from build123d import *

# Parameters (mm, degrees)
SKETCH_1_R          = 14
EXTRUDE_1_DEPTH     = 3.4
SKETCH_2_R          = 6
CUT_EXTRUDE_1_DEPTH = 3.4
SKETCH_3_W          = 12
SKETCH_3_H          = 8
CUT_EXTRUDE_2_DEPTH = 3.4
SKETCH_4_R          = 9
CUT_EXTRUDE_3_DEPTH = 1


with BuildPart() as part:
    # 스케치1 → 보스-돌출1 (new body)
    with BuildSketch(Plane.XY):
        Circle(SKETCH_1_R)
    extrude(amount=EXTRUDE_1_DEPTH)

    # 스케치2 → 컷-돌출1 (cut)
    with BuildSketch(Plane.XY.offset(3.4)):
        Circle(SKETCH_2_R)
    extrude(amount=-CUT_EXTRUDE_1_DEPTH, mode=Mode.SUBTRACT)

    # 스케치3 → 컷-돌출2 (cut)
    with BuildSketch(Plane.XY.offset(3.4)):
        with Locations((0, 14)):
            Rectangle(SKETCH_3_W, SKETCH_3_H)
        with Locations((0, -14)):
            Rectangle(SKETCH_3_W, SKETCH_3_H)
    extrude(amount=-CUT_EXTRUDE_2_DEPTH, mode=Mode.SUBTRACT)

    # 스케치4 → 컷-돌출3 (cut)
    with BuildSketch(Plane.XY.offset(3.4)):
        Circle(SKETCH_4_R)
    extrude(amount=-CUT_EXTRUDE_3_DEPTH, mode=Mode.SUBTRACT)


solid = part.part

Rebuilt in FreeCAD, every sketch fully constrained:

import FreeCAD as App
import Part
import Sketcher

V = App.Vector
Q = App.Units.Quantity


def add_polygon(sketch, points):
    """Adds a closed chain of lines whose ends are joined by coincident constraints."""
    first, n = sketch.GeometryCount, len(points)
    for a, b in zip(points, points[1:] + points[:1]):
        sketch.addGeometry(Part.LineSegment(App.Vector(*a, 0), App.Vector(*b, 0)), False)
    for i in range(n):
        sketch.addConstraint(Sketcher.Constraint("Coincident", first + i, 2, first + (i + 1) % n, 1))

doc = App.newDocument("Part")
body = doc.addObject("PartDesign::Body", "Body")

# Sketch on XY plane
sketch1 = body.newObject("Sketcher::SketchObject", "Sketch")
sketch1.AttachmentSupport = (doc.getObject("XY_Plane"), [""])
sketch1.MapMode = "FlatFace"
sketch1.addGeometry(Part.Circle(V(0, 0, 0), V(0, 0, 1), 14), False)
sketch1.addConstraint([
    Sketcher.Constraint("Coincident", 0, 3, -1, 1),
    Sketcher.Constraint("Diameter", 0, Q("28 mm")),
])
pad1 = body.newObject("PartDesign::Pad", "Pad")
pad1.Profile = sketch1
pad1.Length = 3.4

# Sketch on XY plane
sketch2 = body.newObject("Sketcher::SketchObject", "Sketch001")
sketch2.AttachmentSupport = (doc.getObject("XY_Plane"), [""])
sketch2.MapMode = "FlatFace"
sketch2.AttachmentOffset = App.Placement(V(0, 0, 3.4), App.Rotation())
sketch2.addGeometry(Part.Circle(V(0, 0, 0), V(0, 0, 1), 6), False)
sketch2.addConstraint([
    Sketcher.Constraint("Coincident", 0, 3, -1, 1),
    Sketcher.Constraint("Diameter", 0, Q("12 mm")),
])
pocket1 = body.newObject("PartDesign::Pocket", "Pocket")
pocket1.Profile = sketch2
pocket1.Length = 3.4

# Sketch on XY plane
sketch3 = body.newObject("Sketcher::SketchObject", "Sketch002")
sketch3.AttachmentSupport = (doc.getObject("XY_Plane"), [""])
sketch3.MapMode = "FlatFace"
sketch3.AttachmentOffset = App.Placement(V(0, 0, 3.4), App.Rotation())
add_polygon(sketch3, [(-6, 18), (-6, 10), (6, 10), (6, 18)])  # lines 0-3
add_polygon(sketch3, [(-6, -10), (-6, -18), (6, -18), (6, -10)])  # lines 4-7
sketch3.addConstraint([
    Sketcher.Constraint("Vertical", 0),
    Sketcher.Constraint("Horizontal", 1),
    Sketcher.Constraint("Vertical", 2),
    Sketcher.Constraint("Horizontal", 3),
    Sketcher.Constraint("Vertical", 4),
    Sketcher.Constraint("Horizontal", 5),
    Sketcher.Constraint("Vertical", 6),
    Sketcher.Constraint("Horizontal", 7),
    Sketcher.Constraint("Symmetric", 2, 2, 4, 2, -1, 1),
    Sketcher.Constraint("Symmetric", 0, 2, 6, 2, -1, 1),
    Sketcher.Constraint("Vertical", 3, 2, 4, 2),
    Sketcher.Constraint("DistanceX", 1, 1, 1, 2, Q("12 mm")),
    Sketcher.Constraint("DistanceY", 0, 2, 0, 1, Q("8 mm")),
    Sketcher.Constraint("DistanceY", -1, 1, 0, 2, Q("10 mm")),
])
pocket2 = body.newObject("PartDesign::Pocket", "Pocket001")
pocket2.Profile = sketch3
pocket2.Length = 3.4

# Sketch on XY plane
sketch4 = body.newObject("Sketcher::SketchObject", "Sketch003")
sketch4.AttachmentSupport = (doc.getObject("XY_Plane"), [""])
sketch4.MapMode = "FlatFace"
sketch4.AttachmentOffset = App.Placement(V(0, 0, 3.4), App.Rotation())
sketch4.addGeometry(Part.Circle(V(0, 0, 0), V(0, 0, 1), 9), False)
sketch4.addConstraint([
    Sketcher.Constraint("Coincident", 0, 3, -1, 1),
    Sketcher.Constraint("Diameter", 0, Q("18 mm")),
])
pocket3 = body.newObject("PartDesign::Pocket", "Pocket002")
pocket3.Profile = sketch4
pocket3.Length = 1

doc.recompute()
